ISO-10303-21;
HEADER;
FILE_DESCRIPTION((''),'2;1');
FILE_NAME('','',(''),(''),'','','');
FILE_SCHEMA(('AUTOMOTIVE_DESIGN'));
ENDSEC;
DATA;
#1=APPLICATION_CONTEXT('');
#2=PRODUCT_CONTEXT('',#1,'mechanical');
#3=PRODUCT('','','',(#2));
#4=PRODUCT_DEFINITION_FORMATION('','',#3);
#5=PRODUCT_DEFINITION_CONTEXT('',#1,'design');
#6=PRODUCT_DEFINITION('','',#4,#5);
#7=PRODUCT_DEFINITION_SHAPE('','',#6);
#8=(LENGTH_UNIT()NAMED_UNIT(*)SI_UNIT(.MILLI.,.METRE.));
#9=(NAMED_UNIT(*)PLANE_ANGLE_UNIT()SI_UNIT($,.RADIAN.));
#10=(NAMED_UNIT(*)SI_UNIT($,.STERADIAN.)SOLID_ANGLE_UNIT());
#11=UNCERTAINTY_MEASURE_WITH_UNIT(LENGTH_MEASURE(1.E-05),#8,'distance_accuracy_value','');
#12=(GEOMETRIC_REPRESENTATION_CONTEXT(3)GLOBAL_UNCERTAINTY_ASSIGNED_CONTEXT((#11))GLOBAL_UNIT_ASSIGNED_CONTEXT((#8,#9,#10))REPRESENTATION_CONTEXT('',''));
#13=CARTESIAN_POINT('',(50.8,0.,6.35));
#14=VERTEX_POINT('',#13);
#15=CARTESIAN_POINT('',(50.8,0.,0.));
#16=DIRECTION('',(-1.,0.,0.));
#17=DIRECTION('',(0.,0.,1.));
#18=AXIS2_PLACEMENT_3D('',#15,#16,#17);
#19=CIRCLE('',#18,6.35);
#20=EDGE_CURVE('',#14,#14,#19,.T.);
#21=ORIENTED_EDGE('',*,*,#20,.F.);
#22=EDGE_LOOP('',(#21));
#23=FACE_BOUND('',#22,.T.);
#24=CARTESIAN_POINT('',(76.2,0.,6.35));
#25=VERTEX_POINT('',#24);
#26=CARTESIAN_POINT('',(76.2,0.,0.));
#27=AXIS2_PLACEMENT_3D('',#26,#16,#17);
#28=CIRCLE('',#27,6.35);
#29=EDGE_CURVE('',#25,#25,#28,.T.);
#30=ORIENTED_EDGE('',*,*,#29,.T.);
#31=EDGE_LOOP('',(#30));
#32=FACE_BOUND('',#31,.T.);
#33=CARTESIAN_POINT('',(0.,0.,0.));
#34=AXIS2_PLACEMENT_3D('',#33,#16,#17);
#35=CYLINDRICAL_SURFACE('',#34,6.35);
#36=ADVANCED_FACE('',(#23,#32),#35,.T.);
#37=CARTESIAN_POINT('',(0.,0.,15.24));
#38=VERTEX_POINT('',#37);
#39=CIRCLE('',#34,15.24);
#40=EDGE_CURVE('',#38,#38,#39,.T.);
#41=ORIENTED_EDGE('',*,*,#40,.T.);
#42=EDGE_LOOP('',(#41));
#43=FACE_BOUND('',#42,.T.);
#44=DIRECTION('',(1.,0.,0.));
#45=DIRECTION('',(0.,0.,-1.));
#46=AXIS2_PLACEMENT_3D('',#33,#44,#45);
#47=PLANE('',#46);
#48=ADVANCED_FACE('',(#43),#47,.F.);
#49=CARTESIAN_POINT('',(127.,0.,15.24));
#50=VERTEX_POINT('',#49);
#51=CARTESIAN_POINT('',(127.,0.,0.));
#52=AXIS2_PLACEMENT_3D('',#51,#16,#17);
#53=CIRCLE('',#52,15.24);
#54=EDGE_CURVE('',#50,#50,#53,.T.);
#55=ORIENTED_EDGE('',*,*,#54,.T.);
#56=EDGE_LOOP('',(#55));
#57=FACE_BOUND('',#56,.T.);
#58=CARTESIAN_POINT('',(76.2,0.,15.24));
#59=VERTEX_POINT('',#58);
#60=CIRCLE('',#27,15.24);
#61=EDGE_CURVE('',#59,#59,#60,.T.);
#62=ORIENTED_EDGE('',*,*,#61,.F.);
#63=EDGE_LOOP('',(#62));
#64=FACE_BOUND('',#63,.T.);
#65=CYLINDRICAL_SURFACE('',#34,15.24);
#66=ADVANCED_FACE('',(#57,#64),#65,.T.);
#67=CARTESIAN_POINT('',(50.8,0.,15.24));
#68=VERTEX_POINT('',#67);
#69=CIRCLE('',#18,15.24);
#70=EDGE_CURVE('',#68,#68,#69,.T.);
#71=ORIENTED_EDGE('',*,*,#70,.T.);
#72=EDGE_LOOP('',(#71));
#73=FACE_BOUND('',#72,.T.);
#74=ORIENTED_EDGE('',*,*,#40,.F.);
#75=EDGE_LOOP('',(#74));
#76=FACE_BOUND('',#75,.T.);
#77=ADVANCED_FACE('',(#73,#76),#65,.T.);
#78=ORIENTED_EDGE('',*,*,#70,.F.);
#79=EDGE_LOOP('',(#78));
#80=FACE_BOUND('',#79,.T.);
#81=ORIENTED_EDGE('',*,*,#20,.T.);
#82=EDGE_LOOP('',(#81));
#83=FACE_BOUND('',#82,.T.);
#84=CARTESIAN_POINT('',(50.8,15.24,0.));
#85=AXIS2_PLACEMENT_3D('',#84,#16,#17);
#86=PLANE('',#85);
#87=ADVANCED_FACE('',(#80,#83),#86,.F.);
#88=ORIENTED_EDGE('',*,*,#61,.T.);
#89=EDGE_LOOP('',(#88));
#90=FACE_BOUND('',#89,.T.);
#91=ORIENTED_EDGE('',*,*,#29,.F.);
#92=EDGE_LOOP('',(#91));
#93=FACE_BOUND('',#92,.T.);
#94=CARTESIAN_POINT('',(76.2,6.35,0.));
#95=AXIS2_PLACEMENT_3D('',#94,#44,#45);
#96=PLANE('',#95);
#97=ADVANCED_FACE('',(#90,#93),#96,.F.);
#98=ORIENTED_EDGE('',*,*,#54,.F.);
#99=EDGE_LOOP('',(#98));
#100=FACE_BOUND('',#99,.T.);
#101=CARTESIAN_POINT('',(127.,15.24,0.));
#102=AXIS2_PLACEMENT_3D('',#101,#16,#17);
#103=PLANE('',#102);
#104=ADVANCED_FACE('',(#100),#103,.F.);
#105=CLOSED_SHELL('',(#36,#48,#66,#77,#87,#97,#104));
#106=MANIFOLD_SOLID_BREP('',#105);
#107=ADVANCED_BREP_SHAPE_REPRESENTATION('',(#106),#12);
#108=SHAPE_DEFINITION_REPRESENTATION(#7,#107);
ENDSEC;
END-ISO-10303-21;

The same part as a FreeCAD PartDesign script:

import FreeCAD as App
import Part
import Sketcher
from FreeCAD import Vector
Q = App.Units.Quantity


def add_polygon(sketch, points):
    """Adds a closed chain of lines whose ends are joined by coincident constraints."""
    first, n = sketch.GeometryCount, len(points)
    for a, b in zip(points, points[1:] + points[:1]):
        sketch.addGeometry(Part.LineSegment(App.Vector(*a, 0), App.Vector(*b, 0)), False)
    for i in range(n):
        sketch.addConstraint(Sketcher.Constraint("Coincident", first + i, 2, first + (i + 1) % n, 1))

doc = App.newDocument("Part")
body = doc.addObject("PartDesign::Body", "Body")

# Sketch on XY plane
sketch1 = body.newObject("Sketcher::SketchObject", "Sketch")
sketch1.AttachmentSupport = (doc.getObject("XY_Plane"), [""])
sketch1.MapMode = "FlatFace"
add_polygon(sketch1, [(0, 15), (0, 0), (127, 0), (127, 15), (76, 15), (76, 6), (51, 6), (51, 15)])  # lines 0-7
sketch1.addConstraint(Sketcher.Constraint("Vertical", 0))
sketch1.addConstraint(Sketcher.Constraint("Horizontal", 1))
sketch1.addConstraint(Sketcher.Constraint("Vertical", 2))
sketch1.addConstraint(Sketcher.Constraint("Horizontal", 3))
sketch1.addConstraint(Sketcher.Constraint("Vertical", 4))
sketch1.addConstraint(Sketcher.Constraint("Horizontal", 5))
sketch1.addConstraint(Sketcher.Constraint("Vertical", 6))
sketch1.addConstraint(Sketcher.Constraint("Horizontal", 7))
sketch1.addConstraint(Sketcher.Constraint("Coincident", 0, 2, -1, 1))
sketch1.addConstraint(Sketcher.Constraint("Horizontal", 3, 2, 6, 2))
sketch1.addConstraint(Sketcher.Constraint("Equal", 3, 7))
sketch1.addConstraint(Sketcher.Constraint("DistanceX", 1, 1, 1, 2, Q("5 in")))
sketch1.addConstraint(Sketcher.Constraint("DistanceX", 3, 2, 3, 1, Q("2 in")))
sketch1.addConstraint(Sketcher.Constraint("DistanceY", 0, 2, 0, 1, Q("0.6 in")))
sketch1.addConstraint(Sketcher.Constraint("DistanceY", 4, 2, 4, 1, Q("0.35 in")))
revolution = body.newObject("PartDesign::Revolution", "Revolution")
revolution.Profile = sketch1
revolution.ReferenceAxis = (sketch1, ["H_Axis"])
revolution.Angle = 360

doc.recompute()
